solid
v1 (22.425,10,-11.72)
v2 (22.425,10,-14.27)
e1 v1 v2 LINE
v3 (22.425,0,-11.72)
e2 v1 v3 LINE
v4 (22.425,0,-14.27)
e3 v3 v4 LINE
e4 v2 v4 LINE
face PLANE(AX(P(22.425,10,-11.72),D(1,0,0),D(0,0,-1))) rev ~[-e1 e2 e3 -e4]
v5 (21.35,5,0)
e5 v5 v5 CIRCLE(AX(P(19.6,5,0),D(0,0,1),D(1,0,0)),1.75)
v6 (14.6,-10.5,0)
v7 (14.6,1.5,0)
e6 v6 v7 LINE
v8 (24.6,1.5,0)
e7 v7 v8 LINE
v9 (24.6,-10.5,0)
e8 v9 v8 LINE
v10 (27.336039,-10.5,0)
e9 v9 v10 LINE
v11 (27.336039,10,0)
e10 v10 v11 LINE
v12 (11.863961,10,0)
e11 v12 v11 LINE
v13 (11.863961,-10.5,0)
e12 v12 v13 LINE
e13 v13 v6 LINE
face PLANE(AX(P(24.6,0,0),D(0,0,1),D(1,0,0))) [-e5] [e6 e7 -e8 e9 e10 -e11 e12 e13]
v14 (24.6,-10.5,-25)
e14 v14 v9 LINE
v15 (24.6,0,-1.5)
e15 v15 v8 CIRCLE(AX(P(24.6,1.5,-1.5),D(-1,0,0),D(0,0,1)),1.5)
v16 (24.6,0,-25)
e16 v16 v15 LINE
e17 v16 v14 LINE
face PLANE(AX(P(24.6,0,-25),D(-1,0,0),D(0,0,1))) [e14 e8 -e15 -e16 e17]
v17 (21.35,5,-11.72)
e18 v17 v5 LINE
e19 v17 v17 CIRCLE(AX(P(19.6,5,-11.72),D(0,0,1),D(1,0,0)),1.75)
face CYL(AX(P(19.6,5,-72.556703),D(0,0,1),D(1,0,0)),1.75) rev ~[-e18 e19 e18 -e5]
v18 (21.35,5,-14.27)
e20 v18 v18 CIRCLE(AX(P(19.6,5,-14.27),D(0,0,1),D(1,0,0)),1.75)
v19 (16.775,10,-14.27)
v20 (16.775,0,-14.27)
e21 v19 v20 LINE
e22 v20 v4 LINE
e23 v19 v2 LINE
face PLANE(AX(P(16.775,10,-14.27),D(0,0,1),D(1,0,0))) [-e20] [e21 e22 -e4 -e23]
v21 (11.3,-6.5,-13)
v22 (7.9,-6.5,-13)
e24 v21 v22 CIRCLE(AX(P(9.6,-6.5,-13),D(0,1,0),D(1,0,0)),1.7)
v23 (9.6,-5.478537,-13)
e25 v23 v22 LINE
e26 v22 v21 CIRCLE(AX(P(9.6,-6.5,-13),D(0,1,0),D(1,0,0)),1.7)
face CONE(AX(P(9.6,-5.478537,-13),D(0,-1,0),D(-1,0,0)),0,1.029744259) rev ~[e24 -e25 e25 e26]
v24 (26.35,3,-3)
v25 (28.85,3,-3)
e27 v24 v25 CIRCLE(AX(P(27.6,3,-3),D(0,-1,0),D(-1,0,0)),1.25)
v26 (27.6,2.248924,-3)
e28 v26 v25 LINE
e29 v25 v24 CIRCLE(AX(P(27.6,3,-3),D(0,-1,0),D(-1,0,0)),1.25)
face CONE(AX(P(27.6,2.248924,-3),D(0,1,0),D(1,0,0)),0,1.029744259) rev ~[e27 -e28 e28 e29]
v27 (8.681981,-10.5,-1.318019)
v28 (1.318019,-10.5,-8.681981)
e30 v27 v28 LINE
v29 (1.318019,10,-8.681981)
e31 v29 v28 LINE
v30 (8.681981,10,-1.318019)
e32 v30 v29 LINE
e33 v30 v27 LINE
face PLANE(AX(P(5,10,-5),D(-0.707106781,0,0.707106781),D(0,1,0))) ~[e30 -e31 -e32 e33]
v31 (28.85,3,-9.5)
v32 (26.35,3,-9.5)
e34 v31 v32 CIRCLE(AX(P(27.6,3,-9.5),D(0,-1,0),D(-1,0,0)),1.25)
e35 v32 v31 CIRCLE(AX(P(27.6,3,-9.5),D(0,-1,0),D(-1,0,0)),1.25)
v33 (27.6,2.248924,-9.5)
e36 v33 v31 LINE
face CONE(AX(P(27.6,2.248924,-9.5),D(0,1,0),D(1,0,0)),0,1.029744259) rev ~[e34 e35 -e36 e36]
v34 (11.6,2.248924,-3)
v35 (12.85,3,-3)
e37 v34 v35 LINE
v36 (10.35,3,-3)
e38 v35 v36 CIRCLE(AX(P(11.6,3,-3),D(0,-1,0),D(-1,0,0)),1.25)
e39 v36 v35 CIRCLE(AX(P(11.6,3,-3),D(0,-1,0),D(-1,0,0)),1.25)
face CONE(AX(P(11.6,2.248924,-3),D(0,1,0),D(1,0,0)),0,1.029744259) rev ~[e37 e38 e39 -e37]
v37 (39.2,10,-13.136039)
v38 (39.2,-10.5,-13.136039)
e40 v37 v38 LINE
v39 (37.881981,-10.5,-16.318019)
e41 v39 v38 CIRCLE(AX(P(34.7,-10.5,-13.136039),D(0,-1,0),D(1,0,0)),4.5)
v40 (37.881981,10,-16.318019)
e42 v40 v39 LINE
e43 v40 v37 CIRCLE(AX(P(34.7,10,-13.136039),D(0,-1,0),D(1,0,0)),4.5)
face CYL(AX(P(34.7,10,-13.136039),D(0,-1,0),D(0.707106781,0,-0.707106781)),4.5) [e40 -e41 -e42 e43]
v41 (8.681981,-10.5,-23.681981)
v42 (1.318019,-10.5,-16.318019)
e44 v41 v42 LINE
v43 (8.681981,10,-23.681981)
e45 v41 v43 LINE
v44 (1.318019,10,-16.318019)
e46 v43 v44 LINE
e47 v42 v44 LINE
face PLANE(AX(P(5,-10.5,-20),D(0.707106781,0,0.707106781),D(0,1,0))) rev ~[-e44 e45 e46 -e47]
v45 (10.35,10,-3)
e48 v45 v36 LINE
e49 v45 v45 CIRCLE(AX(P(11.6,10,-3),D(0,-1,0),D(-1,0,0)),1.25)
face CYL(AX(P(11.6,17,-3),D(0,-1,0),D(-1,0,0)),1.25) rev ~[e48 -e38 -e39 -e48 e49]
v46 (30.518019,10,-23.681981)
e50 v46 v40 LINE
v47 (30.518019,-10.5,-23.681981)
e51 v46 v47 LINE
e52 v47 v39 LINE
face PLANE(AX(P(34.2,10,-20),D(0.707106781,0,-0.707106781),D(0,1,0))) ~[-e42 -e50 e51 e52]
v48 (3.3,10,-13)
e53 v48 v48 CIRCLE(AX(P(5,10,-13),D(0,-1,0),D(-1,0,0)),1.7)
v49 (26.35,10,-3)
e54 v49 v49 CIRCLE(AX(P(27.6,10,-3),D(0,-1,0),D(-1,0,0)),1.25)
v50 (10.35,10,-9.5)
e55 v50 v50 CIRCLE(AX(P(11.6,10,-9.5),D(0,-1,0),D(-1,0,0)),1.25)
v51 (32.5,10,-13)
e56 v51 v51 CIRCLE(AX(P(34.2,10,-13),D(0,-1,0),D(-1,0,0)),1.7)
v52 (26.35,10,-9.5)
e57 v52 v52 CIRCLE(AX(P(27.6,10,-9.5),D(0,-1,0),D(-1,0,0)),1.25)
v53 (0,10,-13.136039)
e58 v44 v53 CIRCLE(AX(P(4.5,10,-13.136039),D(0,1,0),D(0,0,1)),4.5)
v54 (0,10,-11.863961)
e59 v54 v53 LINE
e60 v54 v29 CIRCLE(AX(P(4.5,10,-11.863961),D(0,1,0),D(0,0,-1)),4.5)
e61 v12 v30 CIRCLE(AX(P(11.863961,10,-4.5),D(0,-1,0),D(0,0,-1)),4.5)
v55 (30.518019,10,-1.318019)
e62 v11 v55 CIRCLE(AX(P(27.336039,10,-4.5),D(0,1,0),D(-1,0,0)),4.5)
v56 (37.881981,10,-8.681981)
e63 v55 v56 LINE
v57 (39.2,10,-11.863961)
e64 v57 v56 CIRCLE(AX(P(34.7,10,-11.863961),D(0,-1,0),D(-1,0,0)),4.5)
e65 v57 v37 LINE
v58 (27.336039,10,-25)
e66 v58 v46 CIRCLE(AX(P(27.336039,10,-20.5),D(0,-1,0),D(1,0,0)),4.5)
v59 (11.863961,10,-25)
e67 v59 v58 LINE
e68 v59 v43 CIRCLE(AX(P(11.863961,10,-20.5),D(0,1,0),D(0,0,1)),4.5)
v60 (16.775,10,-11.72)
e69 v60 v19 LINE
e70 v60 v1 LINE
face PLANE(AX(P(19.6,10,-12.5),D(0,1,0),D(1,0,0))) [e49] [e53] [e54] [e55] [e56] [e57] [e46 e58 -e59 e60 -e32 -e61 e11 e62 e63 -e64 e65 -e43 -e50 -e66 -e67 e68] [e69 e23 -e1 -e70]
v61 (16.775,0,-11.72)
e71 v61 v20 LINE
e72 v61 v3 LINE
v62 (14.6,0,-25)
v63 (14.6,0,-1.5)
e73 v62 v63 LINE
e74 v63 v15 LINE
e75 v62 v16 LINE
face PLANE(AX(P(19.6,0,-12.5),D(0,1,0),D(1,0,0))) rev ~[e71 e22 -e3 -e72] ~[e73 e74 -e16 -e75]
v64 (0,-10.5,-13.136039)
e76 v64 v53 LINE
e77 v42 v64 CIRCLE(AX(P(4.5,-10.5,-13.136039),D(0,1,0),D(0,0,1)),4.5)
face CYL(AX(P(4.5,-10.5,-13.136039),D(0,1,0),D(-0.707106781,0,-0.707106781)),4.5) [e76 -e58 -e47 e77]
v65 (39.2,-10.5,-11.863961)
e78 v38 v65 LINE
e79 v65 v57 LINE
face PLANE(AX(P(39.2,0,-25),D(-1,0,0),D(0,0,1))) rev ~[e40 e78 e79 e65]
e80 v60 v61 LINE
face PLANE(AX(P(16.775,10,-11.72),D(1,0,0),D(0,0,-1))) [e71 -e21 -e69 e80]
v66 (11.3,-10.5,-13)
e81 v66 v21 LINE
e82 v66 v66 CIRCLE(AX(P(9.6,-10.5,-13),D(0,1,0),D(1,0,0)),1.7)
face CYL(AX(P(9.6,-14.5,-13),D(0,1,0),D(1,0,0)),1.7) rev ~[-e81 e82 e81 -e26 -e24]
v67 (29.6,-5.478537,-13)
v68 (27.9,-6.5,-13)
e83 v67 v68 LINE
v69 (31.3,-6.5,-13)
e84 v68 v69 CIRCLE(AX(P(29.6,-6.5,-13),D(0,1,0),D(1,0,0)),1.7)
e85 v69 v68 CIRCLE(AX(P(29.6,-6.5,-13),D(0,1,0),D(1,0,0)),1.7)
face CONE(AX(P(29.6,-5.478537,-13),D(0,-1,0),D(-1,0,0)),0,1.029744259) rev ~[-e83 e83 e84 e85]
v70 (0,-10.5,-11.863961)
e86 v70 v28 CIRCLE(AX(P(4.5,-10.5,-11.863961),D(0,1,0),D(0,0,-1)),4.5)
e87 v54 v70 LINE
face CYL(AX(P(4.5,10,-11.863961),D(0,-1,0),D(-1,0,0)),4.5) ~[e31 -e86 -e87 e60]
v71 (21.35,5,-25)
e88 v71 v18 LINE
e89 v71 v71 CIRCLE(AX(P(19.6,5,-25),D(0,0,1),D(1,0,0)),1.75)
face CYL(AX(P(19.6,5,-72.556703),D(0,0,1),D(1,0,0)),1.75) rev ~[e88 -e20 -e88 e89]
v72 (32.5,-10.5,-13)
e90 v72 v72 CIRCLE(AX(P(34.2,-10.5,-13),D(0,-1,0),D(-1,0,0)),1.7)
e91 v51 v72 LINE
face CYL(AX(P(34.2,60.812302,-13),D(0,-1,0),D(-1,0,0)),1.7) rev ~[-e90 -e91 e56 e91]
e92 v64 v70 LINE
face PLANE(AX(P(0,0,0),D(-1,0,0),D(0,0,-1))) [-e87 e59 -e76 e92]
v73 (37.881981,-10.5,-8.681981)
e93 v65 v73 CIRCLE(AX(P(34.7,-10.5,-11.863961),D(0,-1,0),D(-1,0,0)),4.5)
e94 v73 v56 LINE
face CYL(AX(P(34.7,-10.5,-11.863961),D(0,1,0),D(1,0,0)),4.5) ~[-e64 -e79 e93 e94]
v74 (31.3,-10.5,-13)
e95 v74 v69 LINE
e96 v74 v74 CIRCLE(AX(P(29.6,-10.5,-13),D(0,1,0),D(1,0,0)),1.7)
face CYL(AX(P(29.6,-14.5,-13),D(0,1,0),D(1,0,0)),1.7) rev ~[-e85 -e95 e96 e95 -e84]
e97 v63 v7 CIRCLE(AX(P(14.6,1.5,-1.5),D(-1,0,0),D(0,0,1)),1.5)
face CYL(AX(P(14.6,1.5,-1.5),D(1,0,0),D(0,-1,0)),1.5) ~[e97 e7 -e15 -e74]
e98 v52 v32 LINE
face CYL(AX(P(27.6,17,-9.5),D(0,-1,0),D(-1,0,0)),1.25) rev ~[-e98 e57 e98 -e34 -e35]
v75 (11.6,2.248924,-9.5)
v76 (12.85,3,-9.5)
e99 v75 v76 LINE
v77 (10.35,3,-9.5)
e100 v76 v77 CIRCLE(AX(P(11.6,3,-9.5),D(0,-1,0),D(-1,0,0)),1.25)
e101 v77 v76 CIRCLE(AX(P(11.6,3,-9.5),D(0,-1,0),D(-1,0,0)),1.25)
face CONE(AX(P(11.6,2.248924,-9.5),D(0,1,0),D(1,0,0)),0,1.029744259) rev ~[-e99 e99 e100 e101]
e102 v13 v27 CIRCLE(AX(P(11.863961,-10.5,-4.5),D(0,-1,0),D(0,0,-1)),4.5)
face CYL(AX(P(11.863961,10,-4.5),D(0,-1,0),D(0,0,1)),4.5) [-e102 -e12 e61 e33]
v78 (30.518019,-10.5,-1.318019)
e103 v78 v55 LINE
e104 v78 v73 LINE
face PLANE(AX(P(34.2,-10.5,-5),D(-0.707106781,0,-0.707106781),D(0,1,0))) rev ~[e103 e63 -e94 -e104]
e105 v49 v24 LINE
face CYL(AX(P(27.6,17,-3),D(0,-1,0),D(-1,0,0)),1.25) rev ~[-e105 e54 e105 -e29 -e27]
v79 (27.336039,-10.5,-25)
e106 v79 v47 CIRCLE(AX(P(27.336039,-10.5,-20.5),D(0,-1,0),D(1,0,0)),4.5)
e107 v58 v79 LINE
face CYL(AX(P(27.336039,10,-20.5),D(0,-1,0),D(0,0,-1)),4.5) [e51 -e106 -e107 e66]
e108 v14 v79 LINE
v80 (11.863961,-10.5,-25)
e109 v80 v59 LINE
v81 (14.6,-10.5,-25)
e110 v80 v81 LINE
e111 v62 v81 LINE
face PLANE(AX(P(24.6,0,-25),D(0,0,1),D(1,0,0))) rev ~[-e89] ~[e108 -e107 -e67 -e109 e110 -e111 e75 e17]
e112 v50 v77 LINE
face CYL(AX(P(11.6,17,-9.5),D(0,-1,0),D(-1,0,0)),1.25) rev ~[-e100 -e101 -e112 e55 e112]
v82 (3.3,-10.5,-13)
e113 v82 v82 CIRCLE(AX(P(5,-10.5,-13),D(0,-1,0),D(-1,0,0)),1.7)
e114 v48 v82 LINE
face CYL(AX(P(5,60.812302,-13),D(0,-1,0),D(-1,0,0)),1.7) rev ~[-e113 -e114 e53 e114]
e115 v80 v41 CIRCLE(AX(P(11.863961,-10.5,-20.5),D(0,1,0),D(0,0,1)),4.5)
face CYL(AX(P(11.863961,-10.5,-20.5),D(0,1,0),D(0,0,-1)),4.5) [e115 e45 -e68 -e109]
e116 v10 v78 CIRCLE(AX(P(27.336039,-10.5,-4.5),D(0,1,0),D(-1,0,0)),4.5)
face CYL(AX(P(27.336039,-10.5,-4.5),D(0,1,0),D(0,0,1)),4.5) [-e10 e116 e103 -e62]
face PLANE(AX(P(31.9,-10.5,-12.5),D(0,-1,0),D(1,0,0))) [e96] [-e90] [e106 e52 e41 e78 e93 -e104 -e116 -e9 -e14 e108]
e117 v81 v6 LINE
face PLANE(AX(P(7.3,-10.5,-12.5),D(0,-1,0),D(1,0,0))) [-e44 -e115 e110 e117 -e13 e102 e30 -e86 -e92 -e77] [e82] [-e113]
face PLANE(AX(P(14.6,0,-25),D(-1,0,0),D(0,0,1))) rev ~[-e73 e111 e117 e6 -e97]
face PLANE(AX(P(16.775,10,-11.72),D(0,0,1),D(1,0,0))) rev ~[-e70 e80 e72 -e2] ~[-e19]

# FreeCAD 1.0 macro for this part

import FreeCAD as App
import Part
import Sketcher


def edges_at(feature, points):
    """Names of the edges that pass closest to the given points."""
    edges = feature.Shape.Edges
    near = lambda p: min(range(len(edges)), key=lambda i: edges[i].distToShape(Part.Vertex(*p))[0])
    return sorted({f"Edge{near(p) + 1}" for p in points})


def add_polygon(sketch, points):
    """Adds a closed chain of lines whose ends are joined by coincident constraints."""
    first, n = sketch.GeometryCount, len(points)
    for a, b in zip(points, points[1:] + points[:1]):
        sketch.addGeometry(Part.LineSegment(App.Vector(*a, 0), App.Vector(*b, 0)), False)
    for i in range(n):
        sketch.addConstraint(Sketcher.Constraint("Coincident", first + i, 2, first + (i + 1) % n, 1))

doc = App.newDocument("Part")
body = doc.addObject("PartDesign::Body", "Body")

# Sketch on XZ plane
sketch1 = body.newObject("Sketcher::SketchObject", "Sketch")
sketch1.AttachmentSupport = (doc.getObject("XZ_Plane"), [""])
sketch1.MapMode = "FlatFace"
add_polygon(sketch1, [(0, -25), (0, 0), (39, 0), (39, -25)])  # lines 0-3
sketch1.addConstraint(Sketcher.Constraint("Vertical", 0))
sketch1.addConstraint(Sketcher.Constraint("Horizontal", 1))
sketch1.addConstraint(Sketcher.Constraint("Vertical", 2))
sketch1.addConstraint(Sketcher.Constraint("Horizontal", 3))
sketch1.addConstraint(Sketcher.Constraint("Coincident", 0, 2, -1, 1))
sketch1.addConstraint(Sketcher.Constraint("DistanceY", 0, 1, 0, 2, 25.0))
sketch1.addConstraint(Sketcher.Constraint("DistanceX", 1, 1, 1, 2, 39.2))
pad1 = body.newObject("PartDesign::Pad", "Pad")
pad1.Profile = sketch1
pad1.Length = 10
pad1.Reversed = True

# Sketch on XY plane
sketch2 = body.newObject("Sketcher::SketchObject", "Sketch001")
sketch2.AttachmentSupport = (doc.getObject("XY_Plane"), [""])
sketch2.MapMode = "FlatFace"
sketch2.AttachmentOffset = App.Placement(App.Vector(0, 0, -25), App.Rotation())
sketch2.addGeometry(Part.Circle(App.Vector(19.6, 5, 0), App.Vector(0, 0, 1), 1.8), False)
sketch2.addConstraint(Sketcher.Constraint("Diameter", 0, 3.5))
sketch2.addConstraint(Sketcher.Constraint("DistanceY", -1, 1, 0, 3, 5.0))
sketch2.addConstraint(Sketcher.Constraint("DistanceX", -1, 1, 0, 3, 19.6))
doc.recompute()
hole = body.newObject("PartDesign::Hole", "Hole")
hole.Profile = sketch2
hole.ThreadType = "None"
hole.Diameter = 3.5
hole.DepthType = "ThroughAll"
hole.Reversed = True

# Sketch on XZ plane
sketch3 = body.newObject("Sketcher::SketchObject", "Sketch002")
sketch3.AttachmentSupport = (doc.getObject("XZ_Plane"), [""])
sketch3.MapMode = "FlatFace"
add_polygon(sketch3, [(25, 0), (25, -25), (39, -25), (39, 0)])  # lines 0-3
add_polygon(sketch3, [(0, 0), (0, -25), (15, -25), (15, 0)])  # lines 4-7
sketch3.addConstraint(Sketcher.Constraint("Vertical", 0))
sketch3.addConstraint(Sketcher.Constraint("Horizontal", 1))
sketch3.addConstraint(Sketcher.Constraint("Vertical", 2))
sketch3.addConstraint(Sketcher.Constraint("Horizontal", 3))
sketch3.addConstraint(Sketcher.Constraint("Vertical", 4))
sketch3.addConstraint(Sketcher.Constraint("Horizontal", 5))
sketch3.addConstraint(Sketcher.Constraint("Vertical", 6))
sketch3.addConstraint(Sketcher.Constraint("Horizontal", 7))
sketch3.addConstraint(Sketcher.Constraint("Coincident", 7, 2, -1, 1))
sketch3.addConstraint(Sketcher.Constraint("PointOnObject", 2, 2, -1))
sketch3.addConstraint(Sketcher.Constraint("Horizontal", 1, 2, 4, 2))
sketch3.addConstraint(Sketcher.Constraint("Equal", 3, 5))
sketch3.addConstraint(Sketcher.Constraint("DistanceY", 0, 2, 0, 1, 25.0))
sketch3.addConstraint(Sketcher.Constraint("DistanceX", 1, 1, 1, 2, 14.6))
sketch3.addConstraint(Sketcher.Constraint("DistanceX", 5, 2, 0, 2, 10.0))
pad2 = body.newObject("PartDesign::Pad", "Pad001")
pad2.Profile = sketch3
pad2.Length = 10.5

# Sketch on XZ plane
sketch4 = body.newObject("Sketcher::SketchObject", "Sketch003")
sketch4.AttachmentSupport = (doc.getObject("XZ_Plane"), [""])
sketch4.MapMode = "FlatFace"
sketch4.AttachmentOffset = App.Placement(App.Vector(0, 0, -10), App.Rotation())
add_polygon(sketch4, [(16.8, -14.3), (16.8, -11.7), (22.4, -11.7), (22.4, -14.3)])  # lines 0-3
sketch4.addConstraint(Sketcher.Constraint("Vertical", 0))
sketch4.addConstraint(Sketcher.Constraint("Horizontal", 1))
sketch4.addConstraint(Sketcher.Constraint("Vertical", 2))
sketch4.addConstraint(Sketcher.Constraint("Horizontal", 3))
sketch4.addConstraint(Sketcher.Constraint("DistanceX", 1, 1, 1, 2, 5.65))
sketch4.addConstraint(Sketcher.Constraint("DistanceY", 0, 1, 0, 2, 2.55))
sketch4.addConstraint(Sketcher.Constraint("DistanceY", 0, 2, -1, 1, 11.72))
sketch4.addConstraint(Sketcher.Constraint("DistanceX", -1, 1, 0, 2, 16.775))
pocket1 = body.newObject("PartDesign::Pocket", "Pocket")
pocket1.Profile = sketch4
pocket1.Length = 10
pocket1.Reversed = True

# Sketch on XZ plane
sketch5 = body.newObject("Sketcher::SketchObject", "Sketch004")
sketch5.AttachmentSupport = (doc.getObject("XZ_Plane"), [""])
sketch5.MapMode = "FlatFace"
sketch5.AttachmentOffset = App.Placement(App.Vector(0, 0, -10), App.Rotation())
sketch5.addGeometry(Part.Circle(App.Vector(11.6, -3, 0), App.Vector(0, 0, 1), 1.2), False)
sketch5.addGeometry(Part.Circle(App.Vector(27.6, -3, 0), App.Vector(0, 0, 1), 1.2), False)
sketch5.addGeometry(Part.Circle(App.Vector(27.6, -9.5, 0), App.Vector(0, 0, 1), 1.2), False)
sketch5.addGeometry(Part.Circle(App.Vector(11.6, -9.5, 0), App.Vector(0, 0, 1), 1.2), False)
sketch5.addConstraint(Sketcher.Constraint("Equal", 0, 1))
sketch5.addConstraint(Sketcher.Constraint("Equal", 1, 2))
sketch5.addConstraint(Sketcher.Constraint("Equal", 2, 3))
sketch5.addConstraint(Sketcher.Constraint("Horizontal", 0, 3, 1, 3))
sketch5.addConstraint(Sketcher.Constraint("Horizontal", 2, 3, 3, 3))
sketch5.addConstraint(Sketcher.Constraint("Vertical", 1, 3, 2, 3))
sketch5.addConstraint(Sketcher.Constraint("Vertical", 0, 3, 3, 3))
sketch5.addConstraint(Sketcher.Constraint("Diameter", 0, 2.5))
sketch5.addConstraint(Sketcher.Constraint("DistanceY", 0, 3, -1, 1, 3.0))
sketch5.addConstraint(Sketcher.Constraint("DistanceX", 0, 3, 1, 3, 16.0))
sketch5.addConstraint(Sketcher.Constraint("DistanceX", -1, 1, 0, 3, 11.6))
sketch5.addConstraint(Sketcher.Constraint("DistanceY", 2, 3, -1, 1, 9.5))
doc.recompute()
hole2 = body.newObject("PartDesign::Hole", "Hole001")
hole2.Profile = sketch5
hole2.ThreadType = "None"
hole2.Diameter = 2.5
hole2.DepthType = "Dimension"
hole2.Depth = 7
hole2.DrillPoint = "Angled"
hole2.DrillPointAngle = 118
hole2.Reversed = True

# Sketch on XZ plane
sketch6 = body.newObject("Sketcher::SketchObject", "Sketch005")
sketch6.AttachmentSupport = (doc.getObject("XZ_Plane"), [""])
sketch6.MapMode = "FlatFace"
sketch6.AttachmentOffset = App.Placement(App.Vector(0, 0, -10), App.Rotation())
sketch6.addGeometry(Part.Circle(App.Vector(34.2, -13, 0), App.Vector(0, 0, 1), 1.7), False)
sketch6.addGeometry(Part.Circle(App.Vector(5, -13, 0), App.Vector(0, 0, 1), 1.7), False)
sketch6.addConstraint(Sketcher.Constraint("Equal", 0, 1))
sketch6.addConstraint(Sketcher.Constraint("Horizontal", 0, 3, 1, 3))
sketch6.addConstraint(Sketcher.Constraint("Diameter", 0, 3.4))
sketch6.addConstraint(Sketcher.Constraint("DistanceY", 0, 3, -1, 1, 13.0))
sketch6.addConstraint(Sketcher.Constraint("DistanceX", -1, 1, 1, 3, 5.0))
sketch6.addConstraint(Sketcher.Constraint("DistanceX", -1, 1, 0, 3, 34.2))
doc.recompute()
hole3 = body.newObject("PartDesign::Hole", "Hole002")
hole3.Profile = sketch6
hole3.ThreadType = "None"
hole3.Diameter = 3.4
hole3.DepthType = "ThroughAll"
hole3.Reversed = True
doc.recompute()

chamfer = body.newObject("PartDesign::Chamfer", "Chamfer")
chamfer.Base = (hole3, edges_at(hole3, [
    (0, -0.25, 0),
    (0, -0.25, -25),
    (39.2, -0.25, -25),
    (39.2, -0.25, 0),
]))
chamfer.Size = 10
doc.recompute()

fillet = body.newObject("PartDesign::Fillet", "Fillet")
fillet.Base = (chamfer, edges_at(chamfer, [
    (39.2, -0.25, -10),
    (0, -0.25, -10),
    (0, -0.25, -15),
    (29.2, -0.25, -25),
    (10, -0.25, -25),
    (29.2, -0.25, 0),
    (10, -0.25, 0),
    (39.2, -0.25, -15),
]))
fillet.Radius = 4.5
doc.recompute()

fillet2 = body.newObject("PartDesign::Fillet", "Fillet001")
fillet2.Base = (fillet, edges_at(fillet, [(19.6, 0, 0)]))
fillet2.Radius = 1.5

# Sketch on XZ plane
sketch7 = body.newObject("Sketcher::SketchObject", "Sketch006")
sketch7.AttachmentSupport = (doc.getObject("XZ_Plane"), [""])
sketch7.MapMode = "FlatFace"
sketch7.AttachmentOffset = App.Placement(App.Vector(0, 0, 10.5), App.Rotation())
sketch7.addGeometry(Part.Circle(App.Vector(9.6, -13, 0), App.Vector(0, 0, 1), 1.7), False)
sketch7.addGeometry(Part.Circle(App.Vector(29.6, -13, 0), App.Vector(0, 0, 1), 1.7), False)
sketch7.addConstraint(Sketcher.Constraint("Equal", 0, 1))
sketch7.addConstraint(Sketcher.Constraint("Horizontal", 0, 3, 1, 3))
sketch7.addConstraint(Sketcher.Constraint("Diameter", 0, 3.4))
sketch7.addConstraint(Sketcher.Constraint("DistanceY", 0, 3, -1, 1, 13.0))
sketch7.addConstraint(Sketcher.Constraint("DistanceX", 0, 3, 1, 3, 20.0))
sketch7.addConstraint(Sketcher.Constraint("DistanceX", -1, 1, 0, 3, 9.6))
doc.recompute()
hole4 = body.newObject("PartDesign::Hole", "Hole003")
hole4.Profile = sketch7
hole4.ThreadType = "None"
hole4.Diameter = 3.4
hole4.DepthType = "Dimension"
hole4.Depth = 4
hole4.DrillPoint = "Angled"
hole4.DrillPointAngle = 118

doc.recompute()
